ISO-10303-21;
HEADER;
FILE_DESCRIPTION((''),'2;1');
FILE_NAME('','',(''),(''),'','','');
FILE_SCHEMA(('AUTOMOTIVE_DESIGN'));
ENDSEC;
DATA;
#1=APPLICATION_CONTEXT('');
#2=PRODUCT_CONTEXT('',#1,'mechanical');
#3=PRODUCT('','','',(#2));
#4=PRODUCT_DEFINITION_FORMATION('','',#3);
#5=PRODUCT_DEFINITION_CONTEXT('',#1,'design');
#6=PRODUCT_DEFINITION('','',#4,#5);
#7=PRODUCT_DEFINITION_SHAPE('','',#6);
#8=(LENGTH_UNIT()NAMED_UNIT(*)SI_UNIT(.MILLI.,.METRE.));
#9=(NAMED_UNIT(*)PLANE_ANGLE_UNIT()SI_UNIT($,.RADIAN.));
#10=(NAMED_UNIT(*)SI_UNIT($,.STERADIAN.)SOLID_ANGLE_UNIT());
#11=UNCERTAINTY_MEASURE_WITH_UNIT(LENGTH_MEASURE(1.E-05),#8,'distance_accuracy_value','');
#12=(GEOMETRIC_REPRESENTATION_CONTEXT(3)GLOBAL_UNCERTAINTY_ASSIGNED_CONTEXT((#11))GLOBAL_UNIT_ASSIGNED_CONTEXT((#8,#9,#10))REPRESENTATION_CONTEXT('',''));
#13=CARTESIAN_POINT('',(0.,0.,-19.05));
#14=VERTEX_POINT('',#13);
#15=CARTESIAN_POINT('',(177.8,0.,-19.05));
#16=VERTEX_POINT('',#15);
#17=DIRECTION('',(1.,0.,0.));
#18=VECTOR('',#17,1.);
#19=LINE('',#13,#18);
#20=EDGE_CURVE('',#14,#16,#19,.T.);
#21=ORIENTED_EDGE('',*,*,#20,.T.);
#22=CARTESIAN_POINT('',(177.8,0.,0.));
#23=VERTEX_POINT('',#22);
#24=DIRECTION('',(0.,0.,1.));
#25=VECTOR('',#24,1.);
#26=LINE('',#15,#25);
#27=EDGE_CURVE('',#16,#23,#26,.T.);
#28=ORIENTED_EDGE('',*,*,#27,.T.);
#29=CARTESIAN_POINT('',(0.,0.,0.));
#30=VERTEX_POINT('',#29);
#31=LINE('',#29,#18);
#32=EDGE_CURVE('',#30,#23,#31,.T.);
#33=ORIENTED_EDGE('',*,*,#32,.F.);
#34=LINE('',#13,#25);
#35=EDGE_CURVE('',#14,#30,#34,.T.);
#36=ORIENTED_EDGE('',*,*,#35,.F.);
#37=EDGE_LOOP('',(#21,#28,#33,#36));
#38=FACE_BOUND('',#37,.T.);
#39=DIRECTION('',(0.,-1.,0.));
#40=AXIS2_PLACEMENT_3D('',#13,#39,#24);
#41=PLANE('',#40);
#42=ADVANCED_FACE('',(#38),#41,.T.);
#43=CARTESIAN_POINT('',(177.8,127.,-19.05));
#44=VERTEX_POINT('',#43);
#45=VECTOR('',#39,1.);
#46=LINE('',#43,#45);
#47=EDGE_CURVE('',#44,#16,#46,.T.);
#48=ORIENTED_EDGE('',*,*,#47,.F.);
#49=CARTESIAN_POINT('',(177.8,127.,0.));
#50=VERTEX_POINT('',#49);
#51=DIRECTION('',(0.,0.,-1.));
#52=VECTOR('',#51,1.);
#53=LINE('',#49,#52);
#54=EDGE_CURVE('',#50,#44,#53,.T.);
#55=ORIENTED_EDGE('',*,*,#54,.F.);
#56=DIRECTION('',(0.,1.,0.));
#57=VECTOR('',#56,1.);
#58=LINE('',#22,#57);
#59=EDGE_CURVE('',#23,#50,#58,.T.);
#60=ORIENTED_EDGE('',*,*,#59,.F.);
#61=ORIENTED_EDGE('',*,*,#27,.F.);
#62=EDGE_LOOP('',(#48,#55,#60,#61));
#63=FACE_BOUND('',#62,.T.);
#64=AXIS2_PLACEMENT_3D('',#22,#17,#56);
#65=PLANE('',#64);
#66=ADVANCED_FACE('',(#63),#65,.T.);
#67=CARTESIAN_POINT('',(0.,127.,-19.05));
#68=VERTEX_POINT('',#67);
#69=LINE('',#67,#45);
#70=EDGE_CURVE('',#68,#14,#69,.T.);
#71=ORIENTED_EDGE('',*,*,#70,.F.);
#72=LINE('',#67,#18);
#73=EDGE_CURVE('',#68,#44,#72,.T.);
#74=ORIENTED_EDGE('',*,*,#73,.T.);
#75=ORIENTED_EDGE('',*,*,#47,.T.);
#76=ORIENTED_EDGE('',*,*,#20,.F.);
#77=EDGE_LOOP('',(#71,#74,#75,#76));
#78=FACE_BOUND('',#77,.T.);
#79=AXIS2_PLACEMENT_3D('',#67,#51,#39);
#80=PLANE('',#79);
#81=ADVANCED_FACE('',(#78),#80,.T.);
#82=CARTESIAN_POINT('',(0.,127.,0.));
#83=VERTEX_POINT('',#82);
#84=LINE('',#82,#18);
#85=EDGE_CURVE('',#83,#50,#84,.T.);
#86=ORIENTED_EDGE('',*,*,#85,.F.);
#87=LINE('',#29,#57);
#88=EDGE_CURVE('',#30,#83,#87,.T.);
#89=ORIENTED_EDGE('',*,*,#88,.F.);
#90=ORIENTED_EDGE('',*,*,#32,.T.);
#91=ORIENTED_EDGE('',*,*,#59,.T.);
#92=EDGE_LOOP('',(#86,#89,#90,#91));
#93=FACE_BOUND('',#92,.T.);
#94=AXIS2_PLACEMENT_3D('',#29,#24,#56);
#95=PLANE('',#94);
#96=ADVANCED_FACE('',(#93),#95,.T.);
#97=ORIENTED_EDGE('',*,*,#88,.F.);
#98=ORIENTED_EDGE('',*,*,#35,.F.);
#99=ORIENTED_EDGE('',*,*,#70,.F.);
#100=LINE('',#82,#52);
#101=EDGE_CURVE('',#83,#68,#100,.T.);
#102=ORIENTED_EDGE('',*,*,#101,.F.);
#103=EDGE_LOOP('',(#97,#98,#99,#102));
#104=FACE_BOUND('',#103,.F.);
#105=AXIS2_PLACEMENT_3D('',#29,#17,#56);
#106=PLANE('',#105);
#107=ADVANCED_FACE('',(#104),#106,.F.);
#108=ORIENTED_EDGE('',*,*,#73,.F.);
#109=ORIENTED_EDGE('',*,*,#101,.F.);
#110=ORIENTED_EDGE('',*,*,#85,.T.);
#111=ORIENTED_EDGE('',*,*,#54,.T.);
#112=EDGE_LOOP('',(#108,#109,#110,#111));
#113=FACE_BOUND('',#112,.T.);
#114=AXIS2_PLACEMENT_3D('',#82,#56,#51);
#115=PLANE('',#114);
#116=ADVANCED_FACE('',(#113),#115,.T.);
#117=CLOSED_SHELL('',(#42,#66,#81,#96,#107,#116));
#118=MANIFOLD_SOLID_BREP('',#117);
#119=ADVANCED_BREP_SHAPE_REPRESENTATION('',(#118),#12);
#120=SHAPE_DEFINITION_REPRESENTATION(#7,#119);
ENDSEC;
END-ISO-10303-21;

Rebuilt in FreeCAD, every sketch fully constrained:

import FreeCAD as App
import Part
import Sketcher
from FreeCAD import Vector
Q = App.Units.Quantity


def add_polygon(sketch, points):
    """Adds a closed chain of lines whose ends are joined by coincident constraints."""
    first, n = sketch.GeometryCount, len(points)
    for a, b in zip(points, points[1:] + points[:1]):
        sketch.addGeometry(Part.LineSegment(App.Vector(*a, 0), App.Vector(*b, 0)), False)
    for i in range(n):
        sketch.addConstraint(Sketcher.Constraint("Coincident", first + i, 2, first + (i + 1) % n, 1))

doc = App.newDocument("Part")
body = doc.addObject("PartDesign::Body", "Body")

# Sketch on YZ plane
sketch1 = doc.addObject("Sketcher::SketchObject", "Sketch")
body.addObject(sketch1)
sketch1.AttachmentSupport = (doc.YZ_Plane, [""])
sketch1.MapMode = "FlatFace"
add_polygon(sketch1, [(127, 0), (0, 0), (0, -19), (127, -19)])  # lines 0-3
sketch1.addConstraint([
    Sketcher.Constraint("Horizontal", 0),
    Sketcher.Constraint("Vertical", 1),
    Sketcher.Constraint("Horizontal", 2),
    Sketcher.Constraint("Vertical", 3),
    Sketcher.Constraint("Coincident", 0, 2, -1, 1),
    Sketcher.Constraint("DistanceX", 0, 2, 0, 1, Q("5 in")),
    Sketcher.Constraint("DistanceY", 1, 2, 1, 1, Q("0.75 in")),
])
pad1 = doc.addObject("PartDesign::Pad", "Pad")
body.addObject(pad1)
pad1.Profile = sketch1
pad1.Length = Q("7 in")

doc.recompute()
